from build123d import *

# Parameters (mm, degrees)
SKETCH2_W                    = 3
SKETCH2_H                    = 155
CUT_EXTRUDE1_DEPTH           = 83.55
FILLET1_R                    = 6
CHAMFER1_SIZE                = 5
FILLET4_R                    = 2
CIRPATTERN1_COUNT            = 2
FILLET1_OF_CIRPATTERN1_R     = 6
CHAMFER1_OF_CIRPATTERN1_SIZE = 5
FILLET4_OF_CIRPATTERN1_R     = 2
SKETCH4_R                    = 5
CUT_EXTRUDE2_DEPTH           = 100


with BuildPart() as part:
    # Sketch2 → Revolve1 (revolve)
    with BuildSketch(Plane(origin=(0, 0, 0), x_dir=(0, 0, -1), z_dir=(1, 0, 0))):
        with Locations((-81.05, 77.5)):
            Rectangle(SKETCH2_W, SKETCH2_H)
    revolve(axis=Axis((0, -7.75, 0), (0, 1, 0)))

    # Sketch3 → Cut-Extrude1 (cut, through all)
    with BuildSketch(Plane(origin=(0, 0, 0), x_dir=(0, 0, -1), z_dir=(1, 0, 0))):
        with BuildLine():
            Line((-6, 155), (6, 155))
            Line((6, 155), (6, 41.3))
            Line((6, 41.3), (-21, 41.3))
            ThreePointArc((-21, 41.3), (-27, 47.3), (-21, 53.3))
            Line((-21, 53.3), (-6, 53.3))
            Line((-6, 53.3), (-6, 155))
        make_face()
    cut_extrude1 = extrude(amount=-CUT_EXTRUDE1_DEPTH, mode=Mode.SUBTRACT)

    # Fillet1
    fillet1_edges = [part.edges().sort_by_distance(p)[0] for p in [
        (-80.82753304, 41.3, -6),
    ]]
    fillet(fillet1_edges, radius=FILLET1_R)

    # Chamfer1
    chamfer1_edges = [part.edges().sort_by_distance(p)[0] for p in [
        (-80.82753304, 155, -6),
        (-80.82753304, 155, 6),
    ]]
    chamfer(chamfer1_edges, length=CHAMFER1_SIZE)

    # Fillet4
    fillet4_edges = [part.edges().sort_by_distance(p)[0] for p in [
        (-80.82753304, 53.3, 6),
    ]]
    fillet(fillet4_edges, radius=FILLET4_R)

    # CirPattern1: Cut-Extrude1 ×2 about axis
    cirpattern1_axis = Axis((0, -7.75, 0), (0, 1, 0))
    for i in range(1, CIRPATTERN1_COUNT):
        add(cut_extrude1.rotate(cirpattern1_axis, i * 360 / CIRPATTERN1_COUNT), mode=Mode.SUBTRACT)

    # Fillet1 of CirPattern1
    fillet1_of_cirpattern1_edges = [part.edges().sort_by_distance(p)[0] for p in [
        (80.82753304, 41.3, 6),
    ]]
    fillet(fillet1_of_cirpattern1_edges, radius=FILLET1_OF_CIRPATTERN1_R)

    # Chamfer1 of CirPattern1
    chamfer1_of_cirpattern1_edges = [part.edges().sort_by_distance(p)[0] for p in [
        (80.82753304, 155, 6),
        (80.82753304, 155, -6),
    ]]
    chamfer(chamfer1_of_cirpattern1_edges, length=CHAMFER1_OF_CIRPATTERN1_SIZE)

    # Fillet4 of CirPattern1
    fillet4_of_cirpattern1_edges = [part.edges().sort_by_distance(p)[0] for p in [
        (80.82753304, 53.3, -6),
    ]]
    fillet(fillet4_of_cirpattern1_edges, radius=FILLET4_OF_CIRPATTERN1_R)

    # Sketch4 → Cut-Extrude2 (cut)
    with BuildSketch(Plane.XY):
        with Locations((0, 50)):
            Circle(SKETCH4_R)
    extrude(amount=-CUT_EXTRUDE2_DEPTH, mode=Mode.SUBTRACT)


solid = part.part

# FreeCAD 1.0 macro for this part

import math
import FreeCAD as App
import Part
import Sketcher


def edges_at(feature, points):
    """Names of the edges that pass closest to the given points."""
    edges = feature.Shape.Edges
    near = lambda p: min(range(len(edges)), key=lambda i: edges[i].distToShape(Part.Vertex(*p))[0])
    return sorted({f"Edge{near(p) + 1}" for p in points})


def add_polygon(sketch, points):
    """Adds a closed chain of lines whose ends are joined by coincident constraints."""
    first, n = sketch.GeometryCount, len(points)
    for a, b in zip(points, points[1:] + points[:1]):
        sketch.addGeometry(Part.LineSegment(App.Vector(*a, 0), App.Vector(*b, 0)), False)
    for i in range(n):
        sketch.addConstraint(Sketcher.Constraint("Coincident", first + i, 2, first + (i + 1) % n, 1))

doc = App.newDocument("Part")
body = doc.addObject("PartDesign::Body", "Body")

# Sketch on YZ plane
sketch1 = body.newObject("Sketcher::SketchObject", "Sketch")
sketch1.AttachmentSupport = (doc.getObject("YZ_Plane"), [""])
sketch1.MapMode = "FlatFace"
add_polygon(sketch1, [(155, 82.55), (0, 82.55), (0, 79.55), (155, 79.55)])  # lines 0-3
sketch1.addConstraint(Sketcher.Constraint("Horizontal", 0))
sketch1.addConstraint(Sketcher.Constraint("Vertical", 1))
sketch1.addConstraint(Sketcher.Constraint("Horizontal", 2))
sketch1.addConstraint(Sketcher.Constraint("Vertical", 3))
sketch1.addConstraint(Sketcher.Constraint("PointOnObject", 0, 2, -2))
sketch1.addConstraint(Sketcher.Constraint("DistanceX", 0, 2, 0, 1, 155.0))
sketch1.addConstraint(Sketcher.Constraint("DistanceY", 1, 2, 1, 1, 3.0))
sketch1.addConstraint(Sketcher.Constraint("DistanceY", -1, 1, 0, 2, 82.55))
revolution = body.newObject("PartDesign::Revolution", "Revolution")
revolution.Profile = sketch1
revolution.ReferenceAxis = (sketch1, ["H_Axis"])
revolution.Angle = 360

# Sketch on YZ plane
sketch2 = body.newObject("Sketcher::SketchObject", "Sketch001")
sketch2.AttachmentSupport = (doc.getObject("YZ_Plane"), [""])
sketch2.MapMode = "FlatFace"
sketch2.addGeometry(Part.LineSegment(App.Vector(155, -6, 0), App.Vector(155, 6, 0)), False)
sketch2.addGeometry(Part.LineSegment(App.Vector(155, 6, 0), App.Vector(53.3, 6, 0)), False)
sketch2.addGeometry(Part.LineSegment(App.Vector(53.3, 6, 0), App.Vector(53.3, 21, 0)), False)
sketch2.addGeometry(Part.ArcOfCircle(Part.Circle(App.Vector(47.3, 21, 0), App.Vector(0, 0, 1), 6), math.radians(0), math.radians(180)), False)
sketch2.addGeometry(Part.LineSegment(App.Vector(41.3, 21, 0), App.Vector(41.3, -6, 0)), False)
sketch2.addGeometry(Part.LineSegment(App.Vector(41.3, -6, 0), App.Vector(155, -6, 0)), False)
sketch2.addConstraint(Sketcher.Constraint("Coincident", 0, 2, 1, 1))
sketch2.addConstraint(Sketcher.Constraint("Coincident", 1, 2, 2, 1))
sketch2.addConstraint(Sketcher.Constraint("Tangent", 2, 2, 3, 1))
sketch2.addConstraint(Sketcher.Constraint("Tangent", 3, 2, 4, 1))
sketch2.addConstraint(Sketcher.Constraint("Coincident", 4, 2, 5, 1))
sketch2.addConstraint(Sketcher.Constraint("Coincident", 5, 2, 0, 1))
sketch2.addConstraint(Sketcher.Constraint("Vertical", 0))
sketch2.addConstraint(Sketcher.Constraint("Horizontal", 1))
sketch2.addConstraint(Sketcher.Constraint("Vertical", 2))
sketch2.addConstraint(Sketcher.Constraint("Vertical", 4))
sketch2.addConstraint(Sketcher.Constraint("Horizontal", 5))
sketch2.addConstraint(Sketcher.Constraint("Radius", 3, 6.0))
sketch2.addConstraint(Sketcher.Constraint("DistanceY", 0, 1, 0, 2, 12.0))
sketch2.addConstraint(Sketcher.Constraint("DistanceY", 2, 1, 2, 2, 15.0))
sketch2.addConstraint(Sketcher.Constraint("DistanceX", 1, 2, 1, 1, 101.7))
sketch2.addConstraint(Sketcher.Constraint("DistanceY", -1, 1, 3, 3, 21.0))
sketch2.addConstraint(Sketcher.Constraint("DistanceX", -1, 1, 0, 2, 155.0))
pocket1 = body.newObject("PartDesign::Pocket", "Pocket")
pocket1.Profile = sketch2
pocket1.Type = "ThroughAll"
doc.recompute()

fillet = body.newObject("PartDesign::Fillet", "Fillet")
fillet.Base = (pocket1, edges_at(pocket1, [(-80.828, 41.3, -6)]))
fillet.Radius = 6
doc.recompute()

chamfer = body.newObject("PartDesign::Chamfer", "Chamfer")
chamfer.Base = (fillet, edges_at(fillet, [(-80.828, 155, -6), (-80.828, 155, 6)]))
chamfer.Size = 5
doc.recompute()

fillet2 = body.newObject("PartDesign::Fillet", "Fillet001")
fillet2.Base = (chamfer, edges_at(chamfer, [(-80.828, 53.3, 6)]))
fillet2.Radius = 2
doc.recompute()

polarpattern = body.newObject("PartDesign::PolarPattern", "PolarPattern")
polarpattern.Originals = [pocket1]
polarpattern.Axis = (doc.getObject("Y_Axis"), [""])
polarpattern.Angle = 360
polarpattern.Occurrences = 2
body.Tip = polarpattern
doc.recompute()

fillet3 = body.newObject("PartDesign::Fillet", "Fillet002")
fillet3.Base = (polarpattern, edges_at(polarpattern, [(80.828, 41.3, 6)]))
fillet3.Radius = 6
doc.recompute()

chamfer2 = body.newObject("PartDesign::Chamfer", "Chamfer001")
chamfer2.Base = (fillet3, edges_at(fillet3, [(80.828, 155, 6), (80.828, 155, -6)]))
chamfer2.Size = 5
doc.recompute()

fillet4 = body.newObject("PartDesign::Fillet", "Fillet003")
fillet4.Base = (chamfer2, edges_at(chamfer2, [(80.828, 53.3, -6)]))
fillet4.Radius = 2

# Sketch on XY plane
sketch3 = body.newObject("Sketcher::SketchObject", "Sketch002")
sketch3.AttachmentSupport = (doc.getObject("XY_Plane"), [""])
sketch3.MapMode = "FlatFace"
sketch3.addGeometry(Part.Circle(App.Vector(0, 50, 0), App.Vector(0, 0, 1), 5), False)
sketch3.addConstraint(Sketcher.Constraint("PointOnObject", 0, 3, -2))
sketch3.addConstraint(Sketcher.Constraint("Diameter", 0, 10.0))
sketch3.addConstraint(Sketcher.Constraint("DistanceY", -1, 1, 0, 3, 50.0))
pocket2 = body.newObject("PartDesign::Pocket", "Pocket001")
pocket2.Profile = sketch3
pocket2.Length = 100

doc.recompute()
